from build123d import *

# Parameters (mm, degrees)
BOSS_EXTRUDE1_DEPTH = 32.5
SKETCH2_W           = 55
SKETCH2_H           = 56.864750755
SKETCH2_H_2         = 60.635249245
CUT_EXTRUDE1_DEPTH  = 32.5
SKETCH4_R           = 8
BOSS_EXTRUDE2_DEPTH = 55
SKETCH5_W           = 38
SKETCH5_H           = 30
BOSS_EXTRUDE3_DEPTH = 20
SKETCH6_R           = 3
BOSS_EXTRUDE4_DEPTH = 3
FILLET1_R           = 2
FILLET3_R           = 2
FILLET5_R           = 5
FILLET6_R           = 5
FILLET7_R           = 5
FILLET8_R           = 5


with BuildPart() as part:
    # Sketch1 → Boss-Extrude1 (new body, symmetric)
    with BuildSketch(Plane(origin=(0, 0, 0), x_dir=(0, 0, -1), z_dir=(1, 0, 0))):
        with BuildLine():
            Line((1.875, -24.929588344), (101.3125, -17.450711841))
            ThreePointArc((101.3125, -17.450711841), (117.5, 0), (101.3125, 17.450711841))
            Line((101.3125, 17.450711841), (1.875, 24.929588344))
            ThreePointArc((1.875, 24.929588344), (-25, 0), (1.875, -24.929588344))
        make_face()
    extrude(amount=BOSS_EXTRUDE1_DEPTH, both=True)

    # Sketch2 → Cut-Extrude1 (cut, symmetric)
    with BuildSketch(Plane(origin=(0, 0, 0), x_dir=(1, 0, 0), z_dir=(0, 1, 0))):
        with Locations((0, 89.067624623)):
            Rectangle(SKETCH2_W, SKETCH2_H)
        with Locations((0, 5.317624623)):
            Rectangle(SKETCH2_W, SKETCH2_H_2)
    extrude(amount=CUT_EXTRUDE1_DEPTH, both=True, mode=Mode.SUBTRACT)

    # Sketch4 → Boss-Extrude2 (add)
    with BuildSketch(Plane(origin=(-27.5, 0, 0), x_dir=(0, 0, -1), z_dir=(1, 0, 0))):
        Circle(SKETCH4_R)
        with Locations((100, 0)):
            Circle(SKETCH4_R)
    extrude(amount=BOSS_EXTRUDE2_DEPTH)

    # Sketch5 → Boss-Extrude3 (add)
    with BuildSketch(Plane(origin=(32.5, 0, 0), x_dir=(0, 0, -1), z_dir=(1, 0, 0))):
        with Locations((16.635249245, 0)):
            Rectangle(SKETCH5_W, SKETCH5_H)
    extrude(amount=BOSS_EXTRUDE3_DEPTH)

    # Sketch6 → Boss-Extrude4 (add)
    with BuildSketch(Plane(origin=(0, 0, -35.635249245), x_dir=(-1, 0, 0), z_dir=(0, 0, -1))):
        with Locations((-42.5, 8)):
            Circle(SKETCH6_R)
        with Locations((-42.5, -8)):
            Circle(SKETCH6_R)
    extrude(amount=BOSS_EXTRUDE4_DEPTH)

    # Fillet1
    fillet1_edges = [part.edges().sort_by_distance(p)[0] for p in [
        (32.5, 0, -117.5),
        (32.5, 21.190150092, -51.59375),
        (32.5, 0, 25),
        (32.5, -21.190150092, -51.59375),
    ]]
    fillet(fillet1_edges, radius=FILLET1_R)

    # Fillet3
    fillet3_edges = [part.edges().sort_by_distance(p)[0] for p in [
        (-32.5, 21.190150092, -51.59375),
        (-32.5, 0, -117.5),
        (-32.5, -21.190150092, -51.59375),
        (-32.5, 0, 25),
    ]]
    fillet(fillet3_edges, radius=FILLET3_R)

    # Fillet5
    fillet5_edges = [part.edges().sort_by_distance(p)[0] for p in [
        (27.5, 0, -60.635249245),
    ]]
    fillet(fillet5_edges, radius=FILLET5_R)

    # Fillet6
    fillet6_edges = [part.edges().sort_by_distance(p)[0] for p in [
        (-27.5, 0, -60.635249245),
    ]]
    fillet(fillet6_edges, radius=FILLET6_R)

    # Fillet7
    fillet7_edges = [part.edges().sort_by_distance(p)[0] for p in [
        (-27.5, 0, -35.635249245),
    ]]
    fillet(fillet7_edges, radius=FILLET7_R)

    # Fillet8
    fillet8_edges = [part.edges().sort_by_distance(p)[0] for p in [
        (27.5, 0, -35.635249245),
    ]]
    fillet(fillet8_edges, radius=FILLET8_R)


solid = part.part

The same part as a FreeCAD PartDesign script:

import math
import FreeCAD as App
import Part
import Sketcher
Q = App.Units.Quantity


def edges_at(feature, points):
    """Names of the edges that pass closest to the given points."""
    edges = feature.Shape.Edges
    near = lambda p: min(range(len(edges)), key=lambda i: edges[i].distToShape(Part.Vertex(*p))[0])
    return sorted({f"Edge{near(p) + 1}" for p in points})


def add_polygon(sketch, points):
    """Adds a closed chain of lines whose ends are joined by coincident constraints."""
    first, n = sketch.GeometryCount, len(points)
    for a, b in zip(points, points[1:] + points[:1]):
        sketch.addGeometry(Part.LineSegment(App.Vector(*a, 0), App.Vector(*b, 0)), False)
    for i in range(n):
        sketch.addConstraint(Sketcher.Constraint("Coincident", first + i, 2, first + (i + 1) % n, 1))

doc = App.newDocument("Part")
body = doc.addObject("PartDesign::Body", "Body")

sketch1 = body.newObject("Sketcher::SketchObject", "Sketch")
sketch1.AttachmentSupport = (doc.getObject("YZ_Plane"), [""])
sketch1.MapMode = "FlatFace"
sketch1.addGeometry([
    Part.LineSegment(App.Vector(-25, -2, 0), App.Vector(-17, -101, 0)),
    Part.ArcOfCircle(Part.Circle(App.Vector(0, -100, 0), App.Vector(0, 0, 1), 18), math.radians(-176), math.radians(-4)),
    Part.LineSegment(App.Vector(17, -101, 0), App.Vector(25, -2, 0)),
    Part.ArcOfCircle(Part.Circle(App.Vector(0, 0, 0), App.Vector(0, 0, 1), 25), math.radians(-4), math.radians(184)),
], False)
sketch1.addConstraint([
    Sketcher.Constraint("Tangent", 0, 2, 1, 1),
    Sketcher.Constraint("Tangent", 1, 2, 2, 1),
    Sketcher.Constraint("Tangent", 2, 2, 3, 1),
    Sketcher.Constraint("Tangent", 3, 2, 0, 1),
    Sketcher.Constraint("Coincident", 3, 3, -1, 1),
    Sketcher.Constraint("PointOnObject", 1, 3, -2),
    Sketcher.Constraint("Radius", 3, Q("25 mm")),
    Sketcher.Constraint("Radius", 1, Q("17.5 mm")),
    Sketcher.Constraint("DistanceY", 1, 3, -1, 1, Q("100 mm")),
])
pad1 = body.newObject("PartDesign::Pad", "Pad")
pad1.Profile = sketch1
pad1.Length = 65
pad1.Midplane = True

sketch2 = body.newObject("Sketcher::SketchObject", "Sketch001")
sketch2.AttachmentSupport = (doc.getObject("XZ_Plane"), [""])
sketch2.MapMode = "FlatFace"
add_polygon(sketch2, [(-28, -118), (-28, -61), (28, -61), (28, -118)])
add_polygon(sketch2, [(-28, -36), (-28, 25), (28, 25), (28, -36)])
sketch2.addConstraint([
    Sketcher.Constraint("Vertical", 0),
    Sketcher.Constraint("Horizontal", 1),
    Sketcher.Constraint("Vertical", 2),
    Sketcher.Constraint("Horizontal", 3),
    Sketcher.Constraint("Vertical", 4),
    Sketcher.Constraint("Horizontal", 5),
    Sketcher.Constraint("Vertical", 6),
    Sketcher.Constraint("Horizontal", 7),
    Sketcher.Constraint("Vertical", 3, 2, 4, 2),
    Sketcher.Constraint("Vertical", 2, 2, 5, 2),
    Sketcher.Constraint("DistanceX", 1, 1, 1, 2, Q("55 mm")),
    Sketcher.Constraint("DistanceY", -1, 1, 4, 2, Q("25 mm")),
    Sketcher.Constraint("DistanceY", 1, 2, 6, 2, Q("25 mm")),
    Sketcher.Constraint("DistanceX", 0, 2, -1, 1, Q("27.5 mm")),
    Sketcher.Constraint("DistanceY", 2, 2, -1, 1, Q("117.5 mm")),
    Sketcher.Constraint("DistanceY", 0, 1, 0, 2, Q("56.864751 mm")),
])
pocket1 = body.newObject("PartDesign::Pocket", "Pocket")
pocket1.Profile = sketch2
pocket1.Length = 65
pocket1.Midplane = True

sketch3 = body.newObject("Sketcher::SketchObject", "Sketch002")
sketch3.AttachmentSupport = (doc.getObject("YZ_Plane"), [""])
sketch3.MapMode = "FlatFace"
sketch3.AttachmentOffset = App.Placement(App.Vector(0, 0, -27.5), App.Rotation())
sketch3.addGeometry([
    Part.Circle(App.Vector(0, 0, 0), App.Vector(0, 0, 1), 8),
    Part.Circle(App.Vector(0, -100, 0), App.Vector(0, 0, 1), 8),
], False)
sketch3.addConstraint([
    Sketcher.Constraint("Coincident", 0, 3, -1, 1),
    Sketcher.Constraint("Equal", 0, 1),
    Sketcher.Constraint("PointOnObject", 1, 3, -2),
    Sketcher.Constraint("Diameter", 0, Q("16 mm")),
    Sketcher.Constraint("DistanceY", 1, 3, -1, 1, Q("100 mm")),
])
pad2 = body.newObject("PartDesign::Pad", "Pad001")
pad2.Profile = sketch3
pad2.Length = 55

sketch4 = body.newObject("Sketcher::SketchObject", "Sketch003")
sketch4.AttachmentSupport = (doc.getObject("YZ_Plane"), [""])
sketch4.MapMode = "FlatFace"
sketch4.AttachmentOffset = App.Placement(App.Vector(0, 0, 32.5), App.Rotation())
add_polygon(sketch4, [(15, 2), (-15, 2), (-15, -36), (15, -36)])
sketch4.addConstraint([
    Sketcher.Constraint("Horizontal", 0),
    Sketcher.Constraint("Vertical", 1),
    Sketcher.Constraint("Horizontal", 2),
    Sketcher.Constraint("Vertical", 3),
    Sketcher.Constraint("DistanceX", 0, 2, 0, 1, Q("30 mm")),
    Sketcher.Constraint("DistanceY", 1, 2, 1, 1, Q("38 mm")),
    Sketcher.Constraint("DistanceX", 0, 2, -1, 1, Q("15 mm")),
    Sketcher.Constraint("DistanceY", -1, 1, 0, 2, Q("2.364751 mm")),
])
pad3 = body.newObject("PartDesign::Pad", "Pad002")
pad3.Profile = sketch4
pad3.Length = 20

sketch5 = body.newObject("Sketcher::SketchObject", "Sketch004")
sketch5.AttachmentSupport = (doc.getObject("XY_Plane"), [""])
sketch5.MapMode = "FlatFace"
sketch5.AttachmentOffset = App.Placement(App.Vector(0, 0, -35.635249), App.Rotation())
sketch5.addGeometry([
    Part.Circle(App.Vector(42.5, 8, 0), App.Vector(0, 0, 1), 3),
    Part.Circle(App.Vector(42.5, -8, 0), App.Vector(0, 0, 1), 3),
], False)
sketch5.addConstraint([
    Sketcher.Constraint("Equal", 0, 1),
    Sketcher.Constraint("Symmetric", 0, 3, 1, 3, -1),
    Sketcher.Constraint("Diameter", 0, Q("6 mm")),
    Sketcher.Constraint("DistanceY", -1, 1, 0, 3, Q("8 mm")),
    Sketcher.Constraint("DistanceX", -1, 1, 0, 3, Q("42.5 mm")),
])
pad4 = body.newObject("PartDesign::Pad", "Pad003")
pad4.Profile = sketch5
pad4.Length = 3
pad4.Reversed = True
doc.recompute()

fillet = body.newObject("PartDesign::Fillet", "Fillet")
fillet.Base = (pad4, edges_at(pad4, [
    (32.5, 0, -117.5),
    (32.5, 21.19, -51.594),
    (32.5, 0, 25),
    (32.5, -21.19, -51.594),
]))
fillet.Radius = 2
doc.recompute()

fillet2 = body.newObject("PartDesign::Fillet", "Fillet001")
fillet2.Base = (fillet, edges_at(fillet, [
    (-32.5, 21.19, -51.594),
    (-32.5, 0, -117.5),
    (-32.5, -21.19, -51.594),
    (-32.5, 0, 25),
]))
fillet2.Radius = 2
doc.recompute()

fillet3 = body.newObject("PartDesign::Fillet", "Fillet002")
fillet3.Base = (fillet2, edges_at(fillet2, [(27.5, 0, -60.635)]))
fillet3.Radius = 5
doc.recompute()

fillet4 = body.newObject("PartDesign::Fillet", "Fillet003")
fillet4.Base = (fillet3, edges_at(fillet3, [(-27.5, 0, -60.635)]))
fillet4.Radius = 5
doc.recompute()

fillet5 = body.newObject("PartDesign::Fillet", "Fillet004")
fillet5.Base = (fillet4, edges_at(fillet4, [(-27.5, 0, -35.635)]))
fillet5.Radius = 5
doc.recompute()

fillet6 = body.newObject("PartDesign::Fillet", "Fillet005")
fillet6.Base = (fillet5, edges_at(fillet5, [(27.5, 0, -35.635)]))
fillet6.Radius = 5

doc.recompute()
